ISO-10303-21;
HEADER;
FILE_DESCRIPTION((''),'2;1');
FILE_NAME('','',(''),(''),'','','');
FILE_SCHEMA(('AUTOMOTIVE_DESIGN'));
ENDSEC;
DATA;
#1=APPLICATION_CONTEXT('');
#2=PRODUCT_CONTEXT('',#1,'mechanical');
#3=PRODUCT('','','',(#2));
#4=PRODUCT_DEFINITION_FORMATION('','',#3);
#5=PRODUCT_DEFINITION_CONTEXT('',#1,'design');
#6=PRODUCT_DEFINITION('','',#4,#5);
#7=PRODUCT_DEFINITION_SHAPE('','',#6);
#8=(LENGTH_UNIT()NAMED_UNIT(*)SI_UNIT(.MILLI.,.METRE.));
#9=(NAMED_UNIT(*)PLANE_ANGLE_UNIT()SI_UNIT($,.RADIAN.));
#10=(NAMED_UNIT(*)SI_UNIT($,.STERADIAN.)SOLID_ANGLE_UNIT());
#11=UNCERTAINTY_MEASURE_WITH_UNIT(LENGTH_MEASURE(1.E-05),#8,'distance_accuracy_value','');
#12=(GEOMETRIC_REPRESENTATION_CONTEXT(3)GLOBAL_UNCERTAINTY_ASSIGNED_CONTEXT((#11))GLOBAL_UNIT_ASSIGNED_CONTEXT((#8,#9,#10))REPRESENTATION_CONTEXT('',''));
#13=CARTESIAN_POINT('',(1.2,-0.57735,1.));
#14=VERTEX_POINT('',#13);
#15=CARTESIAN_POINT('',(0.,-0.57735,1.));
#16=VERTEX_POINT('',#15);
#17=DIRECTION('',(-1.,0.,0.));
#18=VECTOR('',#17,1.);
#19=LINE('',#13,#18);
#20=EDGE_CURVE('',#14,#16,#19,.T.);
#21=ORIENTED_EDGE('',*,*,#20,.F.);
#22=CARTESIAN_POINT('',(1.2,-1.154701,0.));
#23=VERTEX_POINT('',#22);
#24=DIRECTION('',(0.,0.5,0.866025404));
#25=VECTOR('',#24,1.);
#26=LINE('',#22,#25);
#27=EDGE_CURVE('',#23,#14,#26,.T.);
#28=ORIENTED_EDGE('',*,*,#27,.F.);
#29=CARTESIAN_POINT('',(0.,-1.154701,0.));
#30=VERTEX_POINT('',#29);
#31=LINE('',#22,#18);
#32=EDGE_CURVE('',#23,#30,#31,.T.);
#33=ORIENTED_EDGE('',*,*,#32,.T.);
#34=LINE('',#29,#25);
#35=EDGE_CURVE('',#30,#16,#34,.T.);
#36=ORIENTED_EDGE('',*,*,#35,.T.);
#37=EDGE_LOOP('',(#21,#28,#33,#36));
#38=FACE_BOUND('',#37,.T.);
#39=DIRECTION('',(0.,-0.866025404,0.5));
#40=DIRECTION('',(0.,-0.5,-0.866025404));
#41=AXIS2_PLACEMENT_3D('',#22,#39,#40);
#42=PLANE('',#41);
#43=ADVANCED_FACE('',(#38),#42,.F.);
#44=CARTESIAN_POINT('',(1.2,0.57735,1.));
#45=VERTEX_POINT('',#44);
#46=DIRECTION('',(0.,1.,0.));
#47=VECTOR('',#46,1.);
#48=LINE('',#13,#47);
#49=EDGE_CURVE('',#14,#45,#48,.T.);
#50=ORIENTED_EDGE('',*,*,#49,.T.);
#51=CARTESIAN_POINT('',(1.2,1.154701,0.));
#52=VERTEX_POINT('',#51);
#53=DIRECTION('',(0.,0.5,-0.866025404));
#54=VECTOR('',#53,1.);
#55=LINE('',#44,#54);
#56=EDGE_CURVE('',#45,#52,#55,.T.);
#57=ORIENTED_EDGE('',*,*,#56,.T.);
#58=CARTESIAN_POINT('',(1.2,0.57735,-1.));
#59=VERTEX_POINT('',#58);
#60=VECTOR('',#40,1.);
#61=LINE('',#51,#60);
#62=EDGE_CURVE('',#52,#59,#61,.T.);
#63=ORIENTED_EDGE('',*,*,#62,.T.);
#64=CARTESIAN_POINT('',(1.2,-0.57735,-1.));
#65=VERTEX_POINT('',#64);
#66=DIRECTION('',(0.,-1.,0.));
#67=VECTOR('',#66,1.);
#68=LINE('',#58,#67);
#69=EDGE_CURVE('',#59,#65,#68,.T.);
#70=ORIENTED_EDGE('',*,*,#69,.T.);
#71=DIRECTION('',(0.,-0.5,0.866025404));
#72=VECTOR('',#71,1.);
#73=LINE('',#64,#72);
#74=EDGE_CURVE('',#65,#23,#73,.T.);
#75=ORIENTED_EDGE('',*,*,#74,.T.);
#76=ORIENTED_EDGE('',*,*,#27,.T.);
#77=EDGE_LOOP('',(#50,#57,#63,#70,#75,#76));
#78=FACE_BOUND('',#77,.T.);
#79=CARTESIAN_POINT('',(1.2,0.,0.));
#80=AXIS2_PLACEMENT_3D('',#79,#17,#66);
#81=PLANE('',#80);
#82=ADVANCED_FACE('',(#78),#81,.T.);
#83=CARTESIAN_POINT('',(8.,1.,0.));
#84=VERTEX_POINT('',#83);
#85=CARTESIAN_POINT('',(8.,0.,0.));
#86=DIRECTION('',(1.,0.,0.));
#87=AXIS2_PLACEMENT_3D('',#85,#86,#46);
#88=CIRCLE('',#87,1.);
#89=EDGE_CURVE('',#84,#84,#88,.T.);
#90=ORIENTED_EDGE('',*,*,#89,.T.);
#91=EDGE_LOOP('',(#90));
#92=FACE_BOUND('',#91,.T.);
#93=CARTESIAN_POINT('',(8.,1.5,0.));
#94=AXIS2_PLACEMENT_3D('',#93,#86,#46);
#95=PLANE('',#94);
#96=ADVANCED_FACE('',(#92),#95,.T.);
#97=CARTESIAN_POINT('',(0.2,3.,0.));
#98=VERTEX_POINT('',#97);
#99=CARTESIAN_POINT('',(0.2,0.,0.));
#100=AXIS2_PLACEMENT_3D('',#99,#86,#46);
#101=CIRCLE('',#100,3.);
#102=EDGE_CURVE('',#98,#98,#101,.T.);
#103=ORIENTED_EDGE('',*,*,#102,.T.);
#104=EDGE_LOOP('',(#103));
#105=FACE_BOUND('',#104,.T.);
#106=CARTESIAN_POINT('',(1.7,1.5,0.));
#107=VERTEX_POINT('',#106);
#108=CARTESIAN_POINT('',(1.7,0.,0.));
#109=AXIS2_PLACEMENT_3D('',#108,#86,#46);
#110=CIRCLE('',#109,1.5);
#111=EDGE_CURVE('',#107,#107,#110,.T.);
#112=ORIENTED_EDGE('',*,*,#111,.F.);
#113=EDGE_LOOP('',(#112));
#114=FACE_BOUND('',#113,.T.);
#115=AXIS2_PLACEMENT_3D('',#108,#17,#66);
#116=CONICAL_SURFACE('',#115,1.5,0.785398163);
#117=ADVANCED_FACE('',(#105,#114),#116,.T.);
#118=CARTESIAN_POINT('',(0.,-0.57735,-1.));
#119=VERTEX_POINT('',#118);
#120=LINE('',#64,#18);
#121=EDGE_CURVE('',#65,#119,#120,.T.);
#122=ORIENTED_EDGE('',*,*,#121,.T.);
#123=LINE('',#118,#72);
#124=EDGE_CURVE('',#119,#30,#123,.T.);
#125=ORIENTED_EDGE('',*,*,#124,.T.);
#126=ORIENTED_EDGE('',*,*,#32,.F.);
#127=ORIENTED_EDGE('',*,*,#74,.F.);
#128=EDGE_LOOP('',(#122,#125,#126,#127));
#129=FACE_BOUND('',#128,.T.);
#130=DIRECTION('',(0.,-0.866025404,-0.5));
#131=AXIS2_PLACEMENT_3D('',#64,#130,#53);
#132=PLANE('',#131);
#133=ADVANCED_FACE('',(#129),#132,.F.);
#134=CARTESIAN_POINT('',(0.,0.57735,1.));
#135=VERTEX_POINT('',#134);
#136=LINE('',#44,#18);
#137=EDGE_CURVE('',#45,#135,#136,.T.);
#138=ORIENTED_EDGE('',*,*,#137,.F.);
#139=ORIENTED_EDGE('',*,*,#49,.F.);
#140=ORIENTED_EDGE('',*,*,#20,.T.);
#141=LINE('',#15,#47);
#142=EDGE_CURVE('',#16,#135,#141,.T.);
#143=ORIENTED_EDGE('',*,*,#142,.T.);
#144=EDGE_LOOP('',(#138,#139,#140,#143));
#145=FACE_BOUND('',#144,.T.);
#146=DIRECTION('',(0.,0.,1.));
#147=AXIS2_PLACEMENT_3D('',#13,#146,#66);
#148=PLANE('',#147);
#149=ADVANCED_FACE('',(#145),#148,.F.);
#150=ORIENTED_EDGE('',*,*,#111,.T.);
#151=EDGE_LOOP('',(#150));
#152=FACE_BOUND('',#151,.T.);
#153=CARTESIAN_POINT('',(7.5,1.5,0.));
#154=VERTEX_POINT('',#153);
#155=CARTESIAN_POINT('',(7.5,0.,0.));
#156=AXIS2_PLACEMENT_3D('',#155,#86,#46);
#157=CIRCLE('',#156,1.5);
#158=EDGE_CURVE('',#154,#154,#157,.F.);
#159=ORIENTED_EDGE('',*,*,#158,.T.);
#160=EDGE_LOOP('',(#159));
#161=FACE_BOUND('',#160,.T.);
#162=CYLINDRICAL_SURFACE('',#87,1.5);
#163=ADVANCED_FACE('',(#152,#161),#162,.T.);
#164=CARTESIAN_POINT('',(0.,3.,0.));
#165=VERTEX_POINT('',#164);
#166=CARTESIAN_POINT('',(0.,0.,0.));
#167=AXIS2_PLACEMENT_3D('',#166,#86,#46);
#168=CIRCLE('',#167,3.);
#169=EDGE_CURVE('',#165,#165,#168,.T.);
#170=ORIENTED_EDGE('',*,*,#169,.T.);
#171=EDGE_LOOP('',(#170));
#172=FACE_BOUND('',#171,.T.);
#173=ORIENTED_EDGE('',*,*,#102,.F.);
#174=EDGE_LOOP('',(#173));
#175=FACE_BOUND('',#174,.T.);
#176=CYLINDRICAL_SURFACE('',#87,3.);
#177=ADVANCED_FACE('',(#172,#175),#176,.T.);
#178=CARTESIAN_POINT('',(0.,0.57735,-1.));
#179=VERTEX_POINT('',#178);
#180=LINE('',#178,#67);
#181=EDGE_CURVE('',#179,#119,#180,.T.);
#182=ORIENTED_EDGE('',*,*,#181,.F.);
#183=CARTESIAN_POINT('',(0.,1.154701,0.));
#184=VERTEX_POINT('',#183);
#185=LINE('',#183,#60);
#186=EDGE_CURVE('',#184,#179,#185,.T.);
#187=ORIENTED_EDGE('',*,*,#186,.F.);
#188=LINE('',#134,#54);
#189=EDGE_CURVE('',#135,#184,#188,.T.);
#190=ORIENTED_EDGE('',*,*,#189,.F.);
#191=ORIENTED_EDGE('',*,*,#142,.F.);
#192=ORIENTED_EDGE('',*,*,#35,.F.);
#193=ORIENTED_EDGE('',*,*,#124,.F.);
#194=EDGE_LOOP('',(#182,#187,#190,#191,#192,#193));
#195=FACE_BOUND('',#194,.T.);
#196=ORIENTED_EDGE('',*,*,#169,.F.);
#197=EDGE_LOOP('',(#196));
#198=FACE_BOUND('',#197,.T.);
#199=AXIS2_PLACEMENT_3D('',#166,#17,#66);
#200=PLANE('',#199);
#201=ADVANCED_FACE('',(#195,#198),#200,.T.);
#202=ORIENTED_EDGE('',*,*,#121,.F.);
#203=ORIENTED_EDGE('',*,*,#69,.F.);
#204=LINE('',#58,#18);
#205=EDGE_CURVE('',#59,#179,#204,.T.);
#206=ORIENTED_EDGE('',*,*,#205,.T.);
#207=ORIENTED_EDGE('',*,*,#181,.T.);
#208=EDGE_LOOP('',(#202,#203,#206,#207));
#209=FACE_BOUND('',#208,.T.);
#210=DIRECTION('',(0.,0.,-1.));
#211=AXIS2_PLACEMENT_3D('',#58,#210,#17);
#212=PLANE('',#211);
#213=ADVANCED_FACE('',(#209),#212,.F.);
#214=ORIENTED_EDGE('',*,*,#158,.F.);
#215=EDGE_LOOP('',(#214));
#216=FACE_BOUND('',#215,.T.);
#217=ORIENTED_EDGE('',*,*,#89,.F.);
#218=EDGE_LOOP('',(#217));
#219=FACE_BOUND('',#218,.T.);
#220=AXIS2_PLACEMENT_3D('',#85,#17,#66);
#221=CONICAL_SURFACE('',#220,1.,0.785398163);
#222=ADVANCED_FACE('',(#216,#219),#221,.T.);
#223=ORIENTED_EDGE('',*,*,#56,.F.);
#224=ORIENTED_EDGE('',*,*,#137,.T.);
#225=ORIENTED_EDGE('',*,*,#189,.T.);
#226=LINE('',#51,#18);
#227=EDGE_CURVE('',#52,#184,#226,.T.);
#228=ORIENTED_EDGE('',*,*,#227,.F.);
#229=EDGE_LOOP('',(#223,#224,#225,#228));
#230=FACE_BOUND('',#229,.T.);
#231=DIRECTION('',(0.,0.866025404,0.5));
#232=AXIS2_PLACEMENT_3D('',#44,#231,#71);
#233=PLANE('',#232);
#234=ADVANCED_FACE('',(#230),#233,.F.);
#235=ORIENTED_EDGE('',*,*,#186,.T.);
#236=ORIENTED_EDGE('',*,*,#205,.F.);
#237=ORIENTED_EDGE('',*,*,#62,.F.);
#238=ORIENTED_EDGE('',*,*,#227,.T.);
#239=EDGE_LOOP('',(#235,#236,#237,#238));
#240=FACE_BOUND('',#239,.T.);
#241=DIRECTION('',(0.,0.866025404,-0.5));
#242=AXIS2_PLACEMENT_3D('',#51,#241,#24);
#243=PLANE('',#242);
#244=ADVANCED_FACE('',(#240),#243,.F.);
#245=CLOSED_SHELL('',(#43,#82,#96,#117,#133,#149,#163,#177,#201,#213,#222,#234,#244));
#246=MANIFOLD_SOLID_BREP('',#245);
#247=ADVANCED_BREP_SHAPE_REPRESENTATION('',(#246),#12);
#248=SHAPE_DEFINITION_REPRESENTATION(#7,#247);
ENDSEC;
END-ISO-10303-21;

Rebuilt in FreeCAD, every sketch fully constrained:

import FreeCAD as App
import Part
import Sketcher
Q = App.Units.Quantity


def edges_at(feature, points):
    """Names of the edges that pass closest to the given points."""
    edges = feature.Shape.Edges
    near = lambda p: min(range(len(edges)), key=lambda i: edges[i].distToShape(Part.Vertex(*p))[0])
    return sorted({f"Edge{near(p) + 1}" for p in points})


def add_polygon(sketch, points):
    """Adds a closed chain of lines whose ends are joined by coincident constraints."""
    first, n = sketch.GeometryCount, len(points)
    for a, b in zip(points, points[1:] + points[:1]):
        sketch.addGeometry(Part.LineSegment(App.Vector(*a, 0), App.Vector(*b, 0)), False)
    for i in range(n):
        sketch.addConstraint(Sketcher.Constraint("Coincident", first + i, 2, first + (i + 1) % n, 1))

doc = App.newDocument("Part")
body = doc.addObject("PartDesign::Body", "Body")

# Sketch on XY plane
sketch1 = body.newObject("Sketcher::SketchObject", "Sketch")
sketch1.AttachmentSupport = (doc.getObject("XY_Plane"), [""])
sketch1.MapMode = "FlatFace"
add_polygon(sketch1, [(0, 3), (0, 0), (8, 0), (8, 1.5), (1.7, 1.5), (0.2, 3)])  # lines 0-5
sketch1.addConstraint(Sketcher.Constraint("Vertical", 0))
sketch1.addConstraint(Sketcher.Constraint("Horizontal", 1))
sketch1.addConstraint(Sketcher.Constraint("Vertical", 2))
sketch1.addConstraint(Sketcher.Constraint("Horizontal", 3))
sketch1.addConstraint(Sketcher.Constraint("Horizontal", 5))
sketch1.addConstraint(Sketcher.Constraint("Coincident", 0, 2, -1, 1))
sketch1.addConstraint(Sketcher.Constraint("DistanceX", 1, 1, 1, 2, Q("8 mm")))
sketch1.addConstraint(Sketcher.Constraint("DistanceY", 0, 2, 0, 1, Q("3 mm")))
sketch1.addConstraint(Sketcher.Constraint("Angle", 4, Q("135 deg")))
sketch1.addConstraint(Sketcher.Constraint("DistanceX", 3, 2, 3, 1, Q("6.3 mm")))
sketch1.addConstraint(Sketcher.Constraint("DistanceX", 5, 2, 5, 1, Q("0.2 mm")))
revolution = body.newObject("PartDesign::Revolution", "Revolution")
revolution.Profile = sketch1
revolution.ReferenceAxis = (sketch1, ["H_Axis"])
revolution.Angle = 360
doc.recompute()

chamfer = body.newObject("PartDesign::Chamfer", "Chamfer")
chamfer.Base = (revolution, edges_at(revolution, [(8, -1.5, 0)]))
chamfer.Size = 0.5

# Sketch on YZ plane
sketch2 = body.newObject("Sketcher::SketchObject", "Sketch001")
sketch2.AttachmentSupport = (doc.getObject("YZ_Plane"), [""])
sketch2.MapMode = "FlatFace"
add_polygon(sketch2, [(1.2, 0), (0.6, -1), (-0.6, -1), (-1.2, 0), (-0.6, 1), (0.6, 1)])  # lines 0-5
sketch2.addConstraint(Sketcher.Constraint("Horizontal", 1))
sketch2.addConstraint(Sketcher.Constraint("Horizontal", 4))
sketch2.addConstraint(Sketcher.Constraint("Symmetric", 0, 2, 3, 2, -1, 1))
sketch2.addConstraint(Sketcher.Constraint("Symmetric", 2, 2, 5, 2, -1, 1))
sketch2.addConstraint(Sketcher.Constraint("PointOnObject", 2, 2, -1))
sketch2.addConstraint(Sketcher.Constraint("Parallel", 2, 5))
sketch2.addConstraint(Sketcher.Constraint("Vertical", 1, 2, 3, 2))
sketch2.addConstraint(Sketcher.Constraint("Angle", 0, Q("-120 deg")))
sketch2.addConstraint(Sketcher.Constraint("DistanceY", 0, 2, -1, 1, Q("1 mm")))
sketch2.addConstraint(Sketcher.Constraint("DistanceX", 1, 2, 1, 1, Q("1.154701 mm")))
pocket1 = body.newObject("PartDesign::Pocket", "Pocket")
pocket1.Profile = sketch2
pocket1.Length = 1.2
pocket1.Reversed = True

doc.recompute()
